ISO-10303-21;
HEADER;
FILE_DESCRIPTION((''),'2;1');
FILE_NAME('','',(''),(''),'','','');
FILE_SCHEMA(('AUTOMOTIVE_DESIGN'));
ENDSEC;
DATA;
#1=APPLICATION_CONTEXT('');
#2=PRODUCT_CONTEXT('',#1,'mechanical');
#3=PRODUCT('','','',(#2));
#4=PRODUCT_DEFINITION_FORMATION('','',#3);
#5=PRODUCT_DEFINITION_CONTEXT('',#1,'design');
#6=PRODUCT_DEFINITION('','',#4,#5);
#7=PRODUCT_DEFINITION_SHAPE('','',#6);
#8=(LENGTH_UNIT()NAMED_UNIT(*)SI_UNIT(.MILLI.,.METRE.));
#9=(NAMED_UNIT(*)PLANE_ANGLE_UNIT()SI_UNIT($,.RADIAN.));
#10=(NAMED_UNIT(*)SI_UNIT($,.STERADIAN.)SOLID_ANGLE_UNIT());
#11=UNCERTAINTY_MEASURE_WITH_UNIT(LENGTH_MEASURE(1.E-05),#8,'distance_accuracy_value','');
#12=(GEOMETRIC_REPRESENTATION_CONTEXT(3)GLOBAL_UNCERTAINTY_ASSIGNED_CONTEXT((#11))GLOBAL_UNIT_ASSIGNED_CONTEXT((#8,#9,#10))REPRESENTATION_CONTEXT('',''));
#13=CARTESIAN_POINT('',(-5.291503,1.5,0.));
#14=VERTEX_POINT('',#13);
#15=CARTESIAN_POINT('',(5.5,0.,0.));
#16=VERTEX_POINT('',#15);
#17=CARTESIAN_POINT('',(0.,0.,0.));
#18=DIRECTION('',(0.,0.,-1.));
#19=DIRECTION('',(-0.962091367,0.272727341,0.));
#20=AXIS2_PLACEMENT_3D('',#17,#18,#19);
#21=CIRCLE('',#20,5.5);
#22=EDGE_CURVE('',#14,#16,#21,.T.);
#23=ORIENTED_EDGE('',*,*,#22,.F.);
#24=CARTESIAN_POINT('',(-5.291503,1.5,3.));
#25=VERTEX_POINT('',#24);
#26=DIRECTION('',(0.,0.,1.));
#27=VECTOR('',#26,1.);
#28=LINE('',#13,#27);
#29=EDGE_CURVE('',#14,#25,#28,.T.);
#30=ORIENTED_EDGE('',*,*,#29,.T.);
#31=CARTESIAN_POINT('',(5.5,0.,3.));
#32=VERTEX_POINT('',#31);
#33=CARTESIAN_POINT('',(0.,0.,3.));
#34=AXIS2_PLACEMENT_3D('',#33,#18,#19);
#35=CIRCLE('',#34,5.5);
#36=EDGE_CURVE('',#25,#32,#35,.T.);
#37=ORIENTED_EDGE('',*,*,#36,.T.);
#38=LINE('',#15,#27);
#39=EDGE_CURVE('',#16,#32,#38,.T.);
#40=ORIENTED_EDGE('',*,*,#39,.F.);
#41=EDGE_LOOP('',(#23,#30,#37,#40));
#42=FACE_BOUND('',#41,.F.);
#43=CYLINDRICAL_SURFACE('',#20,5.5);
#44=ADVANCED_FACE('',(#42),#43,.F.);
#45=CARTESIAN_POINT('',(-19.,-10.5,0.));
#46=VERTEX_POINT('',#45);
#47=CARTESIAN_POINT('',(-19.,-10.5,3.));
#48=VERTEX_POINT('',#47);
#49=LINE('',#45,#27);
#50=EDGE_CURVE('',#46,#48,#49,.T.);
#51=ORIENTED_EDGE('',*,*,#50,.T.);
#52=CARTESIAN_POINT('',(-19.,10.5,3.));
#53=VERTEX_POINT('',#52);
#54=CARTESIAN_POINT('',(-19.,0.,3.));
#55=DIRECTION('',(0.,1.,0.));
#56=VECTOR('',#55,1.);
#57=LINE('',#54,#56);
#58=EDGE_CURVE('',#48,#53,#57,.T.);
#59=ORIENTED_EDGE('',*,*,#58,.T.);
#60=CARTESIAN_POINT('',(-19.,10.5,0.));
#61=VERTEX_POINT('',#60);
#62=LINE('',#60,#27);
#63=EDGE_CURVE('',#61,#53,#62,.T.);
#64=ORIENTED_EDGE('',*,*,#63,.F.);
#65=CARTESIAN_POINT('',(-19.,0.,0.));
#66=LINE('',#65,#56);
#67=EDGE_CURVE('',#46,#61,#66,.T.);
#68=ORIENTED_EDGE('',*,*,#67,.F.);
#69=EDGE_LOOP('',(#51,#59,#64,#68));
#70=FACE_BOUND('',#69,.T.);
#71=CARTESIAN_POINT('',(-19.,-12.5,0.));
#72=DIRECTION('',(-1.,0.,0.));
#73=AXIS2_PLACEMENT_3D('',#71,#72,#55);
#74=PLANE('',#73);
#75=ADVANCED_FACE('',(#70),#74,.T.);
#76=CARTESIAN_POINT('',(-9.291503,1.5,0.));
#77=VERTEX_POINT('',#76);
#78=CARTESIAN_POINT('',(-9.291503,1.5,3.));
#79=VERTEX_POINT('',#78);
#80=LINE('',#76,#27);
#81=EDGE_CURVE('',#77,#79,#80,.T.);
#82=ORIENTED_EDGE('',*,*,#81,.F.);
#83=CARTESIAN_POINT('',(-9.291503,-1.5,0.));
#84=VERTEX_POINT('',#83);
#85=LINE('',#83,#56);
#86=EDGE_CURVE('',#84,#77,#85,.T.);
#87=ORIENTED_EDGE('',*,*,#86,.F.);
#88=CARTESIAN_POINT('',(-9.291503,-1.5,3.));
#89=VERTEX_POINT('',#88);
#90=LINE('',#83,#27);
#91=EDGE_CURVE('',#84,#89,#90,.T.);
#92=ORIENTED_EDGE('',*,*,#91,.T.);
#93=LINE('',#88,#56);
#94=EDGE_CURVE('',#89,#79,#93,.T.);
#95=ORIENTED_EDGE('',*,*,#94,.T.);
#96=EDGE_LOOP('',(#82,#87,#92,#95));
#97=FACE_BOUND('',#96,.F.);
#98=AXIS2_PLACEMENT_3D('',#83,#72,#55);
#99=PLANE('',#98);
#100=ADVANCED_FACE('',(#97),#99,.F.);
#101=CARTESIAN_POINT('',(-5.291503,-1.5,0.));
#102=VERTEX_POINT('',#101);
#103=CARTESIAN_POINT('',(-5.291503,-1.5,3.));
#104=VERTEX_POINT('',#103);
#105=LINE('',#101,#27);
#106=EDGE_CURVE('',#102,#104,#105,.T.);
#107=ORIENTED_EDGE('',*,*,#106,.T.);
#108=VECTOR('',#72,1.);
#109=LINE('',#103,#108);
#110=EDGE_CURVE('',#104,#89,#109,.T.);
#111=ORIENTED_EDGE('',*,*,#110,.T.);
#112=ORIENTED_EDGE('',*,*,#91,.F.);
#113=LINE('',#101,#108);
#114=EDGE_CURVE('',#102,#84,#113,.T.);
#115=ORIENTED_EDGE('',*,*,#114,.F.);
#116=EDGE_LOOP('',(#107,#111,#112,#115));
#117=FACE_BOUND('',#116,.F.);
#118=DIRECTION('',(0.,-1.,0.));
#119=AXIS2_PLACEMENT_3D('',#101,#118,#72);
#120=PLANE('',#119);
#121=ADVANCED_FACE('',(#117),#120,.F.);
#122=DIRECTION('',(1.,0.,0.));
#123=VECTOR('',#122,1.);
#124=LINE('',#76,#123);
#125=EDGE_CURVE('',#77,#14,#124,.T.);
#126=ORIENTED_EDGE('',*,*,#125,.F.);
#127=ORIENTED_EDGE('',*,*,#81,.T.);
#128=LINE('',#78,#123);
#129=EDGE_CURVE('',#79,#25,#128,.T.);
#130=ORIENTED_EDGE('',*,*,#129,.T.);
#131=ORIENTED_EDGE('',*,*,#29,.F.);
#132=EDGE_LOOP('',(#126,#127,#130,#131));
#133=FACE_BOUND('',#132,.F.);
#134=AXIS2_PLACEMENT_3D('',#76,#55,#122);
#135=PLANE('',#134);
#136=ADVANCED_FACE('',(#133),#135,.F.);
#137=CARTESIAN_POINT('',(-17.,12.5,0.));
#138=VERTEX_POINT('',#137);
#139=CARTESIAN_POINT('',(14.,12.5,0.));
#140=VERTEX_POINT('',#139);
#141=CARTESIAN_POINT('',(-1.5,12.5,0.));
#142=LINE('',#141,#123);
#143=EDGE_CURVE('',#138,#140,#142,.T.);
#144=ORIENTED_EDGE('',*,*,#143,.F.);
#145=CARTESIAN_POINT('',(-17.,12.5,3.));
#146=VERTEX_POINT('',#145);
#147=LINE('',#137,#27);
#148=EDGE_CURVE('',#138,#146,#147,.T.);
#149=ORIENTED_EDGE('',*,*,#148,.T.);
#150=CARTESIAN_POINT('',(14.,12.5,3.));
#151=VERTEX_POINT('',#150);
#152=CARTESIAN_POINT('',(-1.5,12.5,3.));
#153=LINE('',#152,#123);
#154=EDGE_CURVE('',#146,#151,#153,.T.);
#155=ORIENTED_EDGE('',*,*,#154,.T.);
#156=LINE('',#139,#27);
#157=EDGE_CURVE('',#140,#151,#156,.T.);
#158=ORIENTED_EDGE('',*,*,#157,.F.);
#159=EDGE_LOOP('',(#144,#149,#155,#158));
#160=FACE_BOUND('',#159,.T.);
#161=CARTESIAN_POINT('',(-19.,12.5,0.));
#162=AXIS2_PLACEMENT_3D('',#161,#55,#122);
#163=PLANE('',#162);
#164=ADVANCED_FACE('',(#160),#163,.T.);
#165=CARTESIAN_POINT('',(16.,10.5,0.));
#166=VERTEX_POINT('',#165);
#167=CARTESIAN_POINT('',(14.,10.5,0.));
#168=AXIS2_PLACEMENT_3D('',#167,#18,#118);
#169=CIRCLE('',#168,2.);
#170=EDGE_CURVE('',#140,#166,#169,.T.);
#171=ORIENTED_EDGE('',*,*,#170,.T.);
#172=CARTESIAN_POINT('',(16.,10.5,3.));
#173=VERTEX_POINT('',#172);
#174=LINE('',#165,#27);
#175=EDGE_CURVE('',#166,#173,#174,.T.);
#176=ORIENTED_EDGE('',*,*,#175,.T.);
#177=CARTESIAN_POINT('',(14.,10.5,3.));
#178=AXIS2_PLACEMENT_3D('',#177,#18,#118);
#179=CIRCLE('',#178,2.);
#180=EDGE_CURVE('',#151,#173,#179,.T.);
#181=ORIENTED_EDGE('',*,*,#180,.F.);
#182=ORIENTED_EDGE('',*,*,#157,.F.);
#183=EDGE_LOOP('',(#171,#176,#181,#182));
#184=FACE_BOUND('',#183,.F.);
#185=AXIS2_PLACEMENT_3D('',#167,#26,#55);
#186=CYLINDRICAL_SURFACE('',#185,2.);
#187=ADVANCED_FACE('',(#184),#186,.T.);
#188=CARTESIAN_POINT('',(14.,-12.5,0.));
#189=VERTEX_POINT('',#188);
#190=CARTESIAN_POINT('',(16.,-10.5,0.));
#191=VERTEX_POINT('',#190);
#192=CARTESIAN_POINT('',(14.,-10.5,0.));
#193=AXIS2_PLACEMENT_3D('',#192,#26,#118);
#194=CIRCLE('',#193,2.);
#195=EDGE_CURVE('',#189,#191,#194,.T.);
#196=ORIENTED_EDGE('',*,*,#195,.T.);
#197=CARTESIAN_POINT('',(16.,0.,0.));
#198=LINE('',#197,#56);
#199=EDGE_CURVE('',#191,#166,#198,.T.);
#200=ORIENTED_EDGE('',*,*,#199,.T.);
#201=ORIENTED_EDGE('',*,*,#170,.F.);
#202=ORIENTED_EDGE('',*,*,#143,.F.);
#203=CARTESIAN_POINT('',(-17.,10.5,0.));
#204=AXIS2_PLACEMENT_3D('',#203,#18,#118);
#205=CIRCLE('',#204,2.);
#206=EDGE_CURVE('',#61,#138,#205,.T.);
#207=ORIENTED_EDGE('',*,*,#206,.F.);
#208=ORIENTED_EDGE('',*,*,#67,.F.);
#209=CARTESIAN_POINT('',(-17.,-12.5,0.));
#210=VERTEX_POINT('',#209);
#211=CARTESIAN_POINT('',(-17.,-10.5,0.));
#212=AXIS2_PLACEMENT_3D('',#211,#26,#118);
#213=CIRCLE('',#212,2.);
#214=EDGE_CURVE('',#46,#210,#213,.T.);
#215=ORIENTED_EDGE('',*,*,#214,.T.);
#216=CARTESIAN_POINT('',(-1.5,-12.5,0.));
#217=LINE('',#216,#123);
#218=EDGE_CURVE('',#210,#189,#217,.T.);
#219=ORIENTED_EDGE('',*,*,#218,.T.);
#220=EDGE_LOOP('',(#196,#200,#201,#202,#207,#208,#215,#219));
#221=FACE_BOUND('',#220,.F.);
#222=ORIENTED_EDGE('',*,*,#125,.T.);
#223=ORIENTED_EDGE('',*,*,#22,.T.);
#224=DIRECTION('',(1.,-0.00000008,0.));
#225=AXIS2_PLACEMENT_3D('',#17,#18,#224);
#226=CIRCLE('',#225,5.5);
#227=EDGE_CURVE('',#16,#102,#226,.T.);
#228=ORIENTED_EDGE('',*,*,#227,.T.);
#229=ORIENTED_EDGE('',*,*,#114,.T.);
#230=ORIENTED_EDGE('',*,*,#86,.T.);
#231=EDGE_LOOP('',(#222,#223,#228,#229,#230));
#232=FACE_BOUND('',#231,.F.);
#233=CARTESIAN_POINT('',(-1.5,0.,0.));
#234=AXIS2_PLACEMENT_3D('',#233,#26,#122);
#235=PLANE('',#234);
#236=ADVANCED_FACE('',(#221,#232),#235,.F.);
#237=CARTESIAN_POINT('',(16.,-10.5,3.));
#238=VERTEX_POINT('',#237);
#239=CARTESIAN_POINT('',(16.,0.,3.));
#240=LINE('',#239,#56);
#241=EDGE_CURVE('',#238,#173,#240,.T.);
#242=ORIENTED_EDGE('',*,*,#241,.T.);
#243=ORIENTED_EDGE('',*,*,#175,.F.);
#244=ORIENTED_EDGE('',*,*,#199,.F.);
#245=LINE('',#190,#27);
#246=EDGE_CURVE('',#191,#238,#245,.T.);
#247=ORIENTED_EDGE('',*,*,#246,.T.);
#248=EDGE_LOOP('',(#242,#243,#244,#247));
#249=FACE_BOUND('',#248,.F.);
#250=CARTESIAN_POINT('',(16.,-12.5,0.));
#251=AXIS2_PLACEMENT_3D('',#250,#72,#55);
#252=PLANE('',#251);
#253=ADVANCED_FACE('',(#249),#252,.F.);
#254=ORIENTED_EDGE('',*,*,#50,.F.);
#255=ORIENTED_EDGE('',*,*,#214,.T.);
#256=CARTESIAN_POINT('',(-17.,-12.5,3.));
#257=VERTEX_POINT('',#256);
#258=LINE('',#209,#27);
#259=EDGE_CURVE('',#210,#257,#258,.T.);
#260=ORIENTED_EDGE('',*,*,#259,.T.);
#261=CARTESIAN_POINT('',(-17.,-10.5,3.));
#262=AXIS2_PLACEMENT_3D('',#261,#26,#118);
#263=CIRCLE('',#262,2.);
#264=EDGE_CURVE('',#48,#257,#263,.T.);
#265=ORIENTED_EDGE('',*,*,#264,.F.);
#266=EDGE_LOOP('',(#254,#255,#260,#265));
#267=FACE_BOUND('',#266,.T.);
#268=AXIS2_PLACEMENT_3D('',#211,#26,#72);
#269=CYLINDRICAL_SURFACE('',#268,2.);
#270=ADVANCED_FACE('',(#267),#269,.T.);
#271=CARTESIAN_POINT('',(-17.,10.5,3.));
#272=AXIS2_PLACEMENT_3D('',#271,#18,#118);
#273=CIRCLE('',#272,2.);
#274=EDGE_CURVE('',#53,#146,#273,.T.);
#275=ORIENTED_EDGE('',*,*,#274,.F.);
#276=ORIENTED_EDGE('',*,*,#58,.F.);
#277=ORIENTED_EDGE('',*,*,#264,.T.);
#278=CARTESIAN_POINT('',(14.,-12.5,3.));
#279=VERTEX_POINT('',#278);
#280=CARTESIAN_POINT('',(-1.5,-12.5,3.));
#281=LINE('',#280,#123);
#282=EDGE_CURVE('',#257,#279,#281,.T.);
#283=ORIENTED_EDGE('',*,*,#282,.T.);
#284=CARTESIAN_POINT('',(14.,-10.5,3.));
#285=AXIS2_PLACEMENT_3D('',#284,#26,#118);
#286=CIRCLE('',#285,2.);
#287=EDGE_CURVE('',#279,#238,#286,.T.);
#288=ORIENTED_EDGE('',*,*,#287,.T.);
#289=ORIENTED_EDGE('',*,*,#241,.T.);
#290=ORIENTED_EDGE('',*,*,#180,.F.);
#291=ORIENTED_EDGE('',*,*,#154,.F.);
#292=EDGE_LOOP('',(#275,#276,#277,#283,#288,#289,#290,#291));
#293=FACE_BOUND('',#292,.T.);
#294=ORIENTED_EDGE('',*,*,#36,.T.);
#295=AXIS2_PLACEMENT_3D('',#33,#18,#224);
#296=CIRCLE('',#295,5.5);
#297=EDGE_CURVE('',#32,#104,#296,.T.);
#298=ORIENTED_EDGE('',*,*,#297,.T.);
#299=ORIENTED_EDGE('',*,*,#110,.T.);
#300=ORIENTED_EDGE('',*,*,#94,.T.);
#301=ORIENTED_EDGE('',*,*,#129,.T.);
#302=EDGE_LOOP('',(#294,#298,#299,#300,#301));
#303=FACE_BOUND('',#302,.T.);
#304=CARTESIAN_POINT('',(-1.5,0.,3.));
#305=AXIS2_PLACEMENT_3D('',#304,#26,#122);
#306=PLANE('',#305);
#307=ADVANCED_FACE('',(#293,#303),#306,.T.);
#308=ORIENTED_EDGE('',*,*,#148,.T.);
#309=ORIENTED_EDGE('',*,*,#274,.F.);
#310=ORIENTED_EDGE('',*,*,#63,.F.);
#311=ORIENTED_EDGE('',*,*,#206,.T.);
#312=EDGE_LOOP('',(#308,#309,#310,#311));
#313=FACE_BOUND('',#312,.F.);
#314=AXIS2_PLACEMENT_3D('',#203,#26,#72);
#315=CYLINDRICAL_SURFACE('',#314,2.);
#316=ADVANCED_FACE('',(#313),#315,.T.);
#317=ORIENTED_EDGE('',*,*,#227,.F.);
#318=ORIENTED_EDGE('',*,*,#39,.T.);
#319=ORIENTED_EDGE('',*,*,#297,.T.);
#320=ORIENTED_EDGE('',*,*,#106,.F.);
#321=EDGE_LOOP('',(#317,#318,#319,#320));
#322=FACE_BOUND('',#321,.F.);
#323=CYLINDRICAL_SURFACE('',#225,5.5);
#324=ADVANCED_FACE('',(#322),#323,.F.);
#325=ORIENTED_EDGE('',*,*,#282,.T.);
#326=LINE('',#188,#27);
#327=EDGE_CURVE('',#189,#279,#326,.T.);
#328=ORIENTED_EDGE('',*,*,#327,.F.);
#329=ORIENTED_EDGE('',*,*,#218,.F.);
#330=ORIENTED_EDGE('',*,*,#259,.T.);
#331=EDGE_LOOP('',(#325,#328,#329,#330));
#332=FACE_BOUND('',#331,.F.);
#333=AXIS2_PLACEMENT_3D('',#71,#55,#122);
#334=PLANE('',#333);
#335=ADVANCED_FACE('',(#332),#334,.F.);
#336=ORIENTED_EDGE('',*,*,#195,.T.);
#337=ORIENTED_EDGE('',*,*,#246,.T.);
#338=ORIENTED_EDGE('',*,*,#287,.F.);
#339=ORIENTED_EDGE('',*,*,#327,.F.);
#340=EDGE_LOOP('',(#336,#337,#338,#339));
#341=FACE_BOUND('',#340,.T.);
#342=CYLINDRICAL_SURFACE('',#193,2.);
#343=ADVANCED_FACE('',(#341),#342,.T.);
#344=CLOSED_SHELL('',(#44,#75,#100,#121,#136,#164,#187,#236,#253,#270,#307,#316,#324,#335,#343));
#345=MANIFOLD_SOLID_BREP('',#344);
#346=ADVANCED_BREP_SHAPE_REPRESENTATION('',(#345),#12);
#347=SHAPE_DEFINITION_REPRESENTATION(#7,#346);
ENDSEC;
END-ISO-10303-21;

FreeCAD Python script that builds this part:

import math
import FreeCAD as App
import Part
import Sketcher


def edges_at(feature, points):
    """Names of the edges that pass closest to the given points."""
    edges = feature.Shape.Edges
    near = lambda p: min(range(len(edges)), key=lambda i: edges[i].distToShape(Part.Vertex(*p))[0])
    return sorted({f"Edge{near(p) + 1}" for p in points})


def add_polygon(sketch, points):
    """Adds a closed chain of lines whose ends are joined by coincident constraints."""
    first, n = sketch.GeometryCount, len(points)
    for a, b in zip(points, points[1:] + points[:1]):
        sketch.addGeometry(Part.LineSegment(App.Vector(*a, 0), App.Vector(*b, 0)), False)
    for i in range(n):
        sketch.addConstraint(Sketcher.Constraint("Coincident", first + i, 2, first + (i + 1) % n, 1))

doc = App.newDocument("Part")
body = doc.addObject("PartDesign::Body", "Body")

sketch1 = doc.addObject("Sketcher::SketchObject", "Sketch")
body.addObject(sketch1)
sketch1.AttachmentSupport = (doc.XY_Plane, [""])
sketch1.MapMode = "FlatFace"
add_polygon(sketch1, [(-19, 12.5), (-19, -12.5), (16, -12.5), (16, 12.5)])
sketch1.addGeometry(Part.LineSegment(App.Vector(-9.3, 1.5, 0), App.Vector(-5.3, 1.5, 0)), False)
sketch1.addGeometry(Part.ArcOfCircle(Part.Circle(App.Vector(0, 0, 0), App.Vector(0, 0, 1), 5.5), math.radians(0), math.radians(164)), False)
sketch1.addGeometry(Part.ArcOfCircle(Part.Circle(App.Vector(0, 0, 0), App.Vector(0, 0, 1), 5.5), math.radians(-164), math.radians(0)), False)
sketch1.addGeometry(Part.LineSegment(App.Vector(-5.3, -1.5, 0), App.Vector(-9.3, -1.5, 0)), False)
sketch1.addGeometry(Part.LineSegment(App.Vector(-9.3, -1.5, 0), App.Vector(-9.3, 1.5, 0)), False)
sketch1.addConstraint([
    Sketcher.Constraint("Coincident", 4, 2, 5, 2),
    Sketcher.Constraint("Tangent", 5, 1, 6, 2),
    Sketcher.Constraint("Coincident", 6, 1, 7, 1),
    Sketcher.Constraint("Coincident", 7, 2, 8, 1),
    Sketcher.Constraint("Coincident", 8, 2, 4, 1),
    Sketcher.Constraint("Vertical", 0),
    Sketcher.Constraint("Horizontal", 1),
    Sketcher.Constraint("Vertical", 2),
    Sketcher.Constraint("Horizontal", 3),
    Sketcher.Constraint("Horizontal", 4),
    Sketcher.Constraint("Horizontal", 7),
    Sketcher.Constraint("Vertical", 8),
    Sketcher.Constraint("Coincident", 5, 3, -1, 1),
    Sketcher.Constraint("Equal", 5, 6),
    Sketcher.Constraint("PointOnObject", 5, 1, -1),
    Sketcher.Constraint("Vertical", 4, 2, 6, 1),
    Sketcher.Constraint("Radius", 5, 5.5),
    Sketcher.Constraint("DistanceX", 1, 1, 1, 2, 35.0),
    Sketcher.Constraint("DistanceX", 4, 1, 4, 2, 4.0),
    Sketcher.Constraint("DistanceY", 0, 2, 0, 1, 25.0),
    Sketcher.Constraint("DistanceY", 8, 1, 8, 2, 3.0),
    Sketcher.Constraint("DistanceX", 0, 2, -1, 1, 19.0),
    Sketcher.Constraint("DistanceY", 4, 2, 3, 2, 11.0),
])
pad1 = doc.addObject("PartDesign::Pad", "Pad")
body.addObject(pad1)
pad1.Profile = sketch1
pad1.Length = 3
doc.recompute()

fillet = doc.addObject("PartDesign::Fillet", "Fillet")
body.addObject(fillet)
fillet.Base = (pad1, edges_at(pad1, [
    (-19, -12.5, 1.5),
    (16, -12.5, 1.5),
    (16, 12.5, 1.5),
    (-19, 12.5, 1.5),
]))
fillet.Radius = 2

doc.recompute()
